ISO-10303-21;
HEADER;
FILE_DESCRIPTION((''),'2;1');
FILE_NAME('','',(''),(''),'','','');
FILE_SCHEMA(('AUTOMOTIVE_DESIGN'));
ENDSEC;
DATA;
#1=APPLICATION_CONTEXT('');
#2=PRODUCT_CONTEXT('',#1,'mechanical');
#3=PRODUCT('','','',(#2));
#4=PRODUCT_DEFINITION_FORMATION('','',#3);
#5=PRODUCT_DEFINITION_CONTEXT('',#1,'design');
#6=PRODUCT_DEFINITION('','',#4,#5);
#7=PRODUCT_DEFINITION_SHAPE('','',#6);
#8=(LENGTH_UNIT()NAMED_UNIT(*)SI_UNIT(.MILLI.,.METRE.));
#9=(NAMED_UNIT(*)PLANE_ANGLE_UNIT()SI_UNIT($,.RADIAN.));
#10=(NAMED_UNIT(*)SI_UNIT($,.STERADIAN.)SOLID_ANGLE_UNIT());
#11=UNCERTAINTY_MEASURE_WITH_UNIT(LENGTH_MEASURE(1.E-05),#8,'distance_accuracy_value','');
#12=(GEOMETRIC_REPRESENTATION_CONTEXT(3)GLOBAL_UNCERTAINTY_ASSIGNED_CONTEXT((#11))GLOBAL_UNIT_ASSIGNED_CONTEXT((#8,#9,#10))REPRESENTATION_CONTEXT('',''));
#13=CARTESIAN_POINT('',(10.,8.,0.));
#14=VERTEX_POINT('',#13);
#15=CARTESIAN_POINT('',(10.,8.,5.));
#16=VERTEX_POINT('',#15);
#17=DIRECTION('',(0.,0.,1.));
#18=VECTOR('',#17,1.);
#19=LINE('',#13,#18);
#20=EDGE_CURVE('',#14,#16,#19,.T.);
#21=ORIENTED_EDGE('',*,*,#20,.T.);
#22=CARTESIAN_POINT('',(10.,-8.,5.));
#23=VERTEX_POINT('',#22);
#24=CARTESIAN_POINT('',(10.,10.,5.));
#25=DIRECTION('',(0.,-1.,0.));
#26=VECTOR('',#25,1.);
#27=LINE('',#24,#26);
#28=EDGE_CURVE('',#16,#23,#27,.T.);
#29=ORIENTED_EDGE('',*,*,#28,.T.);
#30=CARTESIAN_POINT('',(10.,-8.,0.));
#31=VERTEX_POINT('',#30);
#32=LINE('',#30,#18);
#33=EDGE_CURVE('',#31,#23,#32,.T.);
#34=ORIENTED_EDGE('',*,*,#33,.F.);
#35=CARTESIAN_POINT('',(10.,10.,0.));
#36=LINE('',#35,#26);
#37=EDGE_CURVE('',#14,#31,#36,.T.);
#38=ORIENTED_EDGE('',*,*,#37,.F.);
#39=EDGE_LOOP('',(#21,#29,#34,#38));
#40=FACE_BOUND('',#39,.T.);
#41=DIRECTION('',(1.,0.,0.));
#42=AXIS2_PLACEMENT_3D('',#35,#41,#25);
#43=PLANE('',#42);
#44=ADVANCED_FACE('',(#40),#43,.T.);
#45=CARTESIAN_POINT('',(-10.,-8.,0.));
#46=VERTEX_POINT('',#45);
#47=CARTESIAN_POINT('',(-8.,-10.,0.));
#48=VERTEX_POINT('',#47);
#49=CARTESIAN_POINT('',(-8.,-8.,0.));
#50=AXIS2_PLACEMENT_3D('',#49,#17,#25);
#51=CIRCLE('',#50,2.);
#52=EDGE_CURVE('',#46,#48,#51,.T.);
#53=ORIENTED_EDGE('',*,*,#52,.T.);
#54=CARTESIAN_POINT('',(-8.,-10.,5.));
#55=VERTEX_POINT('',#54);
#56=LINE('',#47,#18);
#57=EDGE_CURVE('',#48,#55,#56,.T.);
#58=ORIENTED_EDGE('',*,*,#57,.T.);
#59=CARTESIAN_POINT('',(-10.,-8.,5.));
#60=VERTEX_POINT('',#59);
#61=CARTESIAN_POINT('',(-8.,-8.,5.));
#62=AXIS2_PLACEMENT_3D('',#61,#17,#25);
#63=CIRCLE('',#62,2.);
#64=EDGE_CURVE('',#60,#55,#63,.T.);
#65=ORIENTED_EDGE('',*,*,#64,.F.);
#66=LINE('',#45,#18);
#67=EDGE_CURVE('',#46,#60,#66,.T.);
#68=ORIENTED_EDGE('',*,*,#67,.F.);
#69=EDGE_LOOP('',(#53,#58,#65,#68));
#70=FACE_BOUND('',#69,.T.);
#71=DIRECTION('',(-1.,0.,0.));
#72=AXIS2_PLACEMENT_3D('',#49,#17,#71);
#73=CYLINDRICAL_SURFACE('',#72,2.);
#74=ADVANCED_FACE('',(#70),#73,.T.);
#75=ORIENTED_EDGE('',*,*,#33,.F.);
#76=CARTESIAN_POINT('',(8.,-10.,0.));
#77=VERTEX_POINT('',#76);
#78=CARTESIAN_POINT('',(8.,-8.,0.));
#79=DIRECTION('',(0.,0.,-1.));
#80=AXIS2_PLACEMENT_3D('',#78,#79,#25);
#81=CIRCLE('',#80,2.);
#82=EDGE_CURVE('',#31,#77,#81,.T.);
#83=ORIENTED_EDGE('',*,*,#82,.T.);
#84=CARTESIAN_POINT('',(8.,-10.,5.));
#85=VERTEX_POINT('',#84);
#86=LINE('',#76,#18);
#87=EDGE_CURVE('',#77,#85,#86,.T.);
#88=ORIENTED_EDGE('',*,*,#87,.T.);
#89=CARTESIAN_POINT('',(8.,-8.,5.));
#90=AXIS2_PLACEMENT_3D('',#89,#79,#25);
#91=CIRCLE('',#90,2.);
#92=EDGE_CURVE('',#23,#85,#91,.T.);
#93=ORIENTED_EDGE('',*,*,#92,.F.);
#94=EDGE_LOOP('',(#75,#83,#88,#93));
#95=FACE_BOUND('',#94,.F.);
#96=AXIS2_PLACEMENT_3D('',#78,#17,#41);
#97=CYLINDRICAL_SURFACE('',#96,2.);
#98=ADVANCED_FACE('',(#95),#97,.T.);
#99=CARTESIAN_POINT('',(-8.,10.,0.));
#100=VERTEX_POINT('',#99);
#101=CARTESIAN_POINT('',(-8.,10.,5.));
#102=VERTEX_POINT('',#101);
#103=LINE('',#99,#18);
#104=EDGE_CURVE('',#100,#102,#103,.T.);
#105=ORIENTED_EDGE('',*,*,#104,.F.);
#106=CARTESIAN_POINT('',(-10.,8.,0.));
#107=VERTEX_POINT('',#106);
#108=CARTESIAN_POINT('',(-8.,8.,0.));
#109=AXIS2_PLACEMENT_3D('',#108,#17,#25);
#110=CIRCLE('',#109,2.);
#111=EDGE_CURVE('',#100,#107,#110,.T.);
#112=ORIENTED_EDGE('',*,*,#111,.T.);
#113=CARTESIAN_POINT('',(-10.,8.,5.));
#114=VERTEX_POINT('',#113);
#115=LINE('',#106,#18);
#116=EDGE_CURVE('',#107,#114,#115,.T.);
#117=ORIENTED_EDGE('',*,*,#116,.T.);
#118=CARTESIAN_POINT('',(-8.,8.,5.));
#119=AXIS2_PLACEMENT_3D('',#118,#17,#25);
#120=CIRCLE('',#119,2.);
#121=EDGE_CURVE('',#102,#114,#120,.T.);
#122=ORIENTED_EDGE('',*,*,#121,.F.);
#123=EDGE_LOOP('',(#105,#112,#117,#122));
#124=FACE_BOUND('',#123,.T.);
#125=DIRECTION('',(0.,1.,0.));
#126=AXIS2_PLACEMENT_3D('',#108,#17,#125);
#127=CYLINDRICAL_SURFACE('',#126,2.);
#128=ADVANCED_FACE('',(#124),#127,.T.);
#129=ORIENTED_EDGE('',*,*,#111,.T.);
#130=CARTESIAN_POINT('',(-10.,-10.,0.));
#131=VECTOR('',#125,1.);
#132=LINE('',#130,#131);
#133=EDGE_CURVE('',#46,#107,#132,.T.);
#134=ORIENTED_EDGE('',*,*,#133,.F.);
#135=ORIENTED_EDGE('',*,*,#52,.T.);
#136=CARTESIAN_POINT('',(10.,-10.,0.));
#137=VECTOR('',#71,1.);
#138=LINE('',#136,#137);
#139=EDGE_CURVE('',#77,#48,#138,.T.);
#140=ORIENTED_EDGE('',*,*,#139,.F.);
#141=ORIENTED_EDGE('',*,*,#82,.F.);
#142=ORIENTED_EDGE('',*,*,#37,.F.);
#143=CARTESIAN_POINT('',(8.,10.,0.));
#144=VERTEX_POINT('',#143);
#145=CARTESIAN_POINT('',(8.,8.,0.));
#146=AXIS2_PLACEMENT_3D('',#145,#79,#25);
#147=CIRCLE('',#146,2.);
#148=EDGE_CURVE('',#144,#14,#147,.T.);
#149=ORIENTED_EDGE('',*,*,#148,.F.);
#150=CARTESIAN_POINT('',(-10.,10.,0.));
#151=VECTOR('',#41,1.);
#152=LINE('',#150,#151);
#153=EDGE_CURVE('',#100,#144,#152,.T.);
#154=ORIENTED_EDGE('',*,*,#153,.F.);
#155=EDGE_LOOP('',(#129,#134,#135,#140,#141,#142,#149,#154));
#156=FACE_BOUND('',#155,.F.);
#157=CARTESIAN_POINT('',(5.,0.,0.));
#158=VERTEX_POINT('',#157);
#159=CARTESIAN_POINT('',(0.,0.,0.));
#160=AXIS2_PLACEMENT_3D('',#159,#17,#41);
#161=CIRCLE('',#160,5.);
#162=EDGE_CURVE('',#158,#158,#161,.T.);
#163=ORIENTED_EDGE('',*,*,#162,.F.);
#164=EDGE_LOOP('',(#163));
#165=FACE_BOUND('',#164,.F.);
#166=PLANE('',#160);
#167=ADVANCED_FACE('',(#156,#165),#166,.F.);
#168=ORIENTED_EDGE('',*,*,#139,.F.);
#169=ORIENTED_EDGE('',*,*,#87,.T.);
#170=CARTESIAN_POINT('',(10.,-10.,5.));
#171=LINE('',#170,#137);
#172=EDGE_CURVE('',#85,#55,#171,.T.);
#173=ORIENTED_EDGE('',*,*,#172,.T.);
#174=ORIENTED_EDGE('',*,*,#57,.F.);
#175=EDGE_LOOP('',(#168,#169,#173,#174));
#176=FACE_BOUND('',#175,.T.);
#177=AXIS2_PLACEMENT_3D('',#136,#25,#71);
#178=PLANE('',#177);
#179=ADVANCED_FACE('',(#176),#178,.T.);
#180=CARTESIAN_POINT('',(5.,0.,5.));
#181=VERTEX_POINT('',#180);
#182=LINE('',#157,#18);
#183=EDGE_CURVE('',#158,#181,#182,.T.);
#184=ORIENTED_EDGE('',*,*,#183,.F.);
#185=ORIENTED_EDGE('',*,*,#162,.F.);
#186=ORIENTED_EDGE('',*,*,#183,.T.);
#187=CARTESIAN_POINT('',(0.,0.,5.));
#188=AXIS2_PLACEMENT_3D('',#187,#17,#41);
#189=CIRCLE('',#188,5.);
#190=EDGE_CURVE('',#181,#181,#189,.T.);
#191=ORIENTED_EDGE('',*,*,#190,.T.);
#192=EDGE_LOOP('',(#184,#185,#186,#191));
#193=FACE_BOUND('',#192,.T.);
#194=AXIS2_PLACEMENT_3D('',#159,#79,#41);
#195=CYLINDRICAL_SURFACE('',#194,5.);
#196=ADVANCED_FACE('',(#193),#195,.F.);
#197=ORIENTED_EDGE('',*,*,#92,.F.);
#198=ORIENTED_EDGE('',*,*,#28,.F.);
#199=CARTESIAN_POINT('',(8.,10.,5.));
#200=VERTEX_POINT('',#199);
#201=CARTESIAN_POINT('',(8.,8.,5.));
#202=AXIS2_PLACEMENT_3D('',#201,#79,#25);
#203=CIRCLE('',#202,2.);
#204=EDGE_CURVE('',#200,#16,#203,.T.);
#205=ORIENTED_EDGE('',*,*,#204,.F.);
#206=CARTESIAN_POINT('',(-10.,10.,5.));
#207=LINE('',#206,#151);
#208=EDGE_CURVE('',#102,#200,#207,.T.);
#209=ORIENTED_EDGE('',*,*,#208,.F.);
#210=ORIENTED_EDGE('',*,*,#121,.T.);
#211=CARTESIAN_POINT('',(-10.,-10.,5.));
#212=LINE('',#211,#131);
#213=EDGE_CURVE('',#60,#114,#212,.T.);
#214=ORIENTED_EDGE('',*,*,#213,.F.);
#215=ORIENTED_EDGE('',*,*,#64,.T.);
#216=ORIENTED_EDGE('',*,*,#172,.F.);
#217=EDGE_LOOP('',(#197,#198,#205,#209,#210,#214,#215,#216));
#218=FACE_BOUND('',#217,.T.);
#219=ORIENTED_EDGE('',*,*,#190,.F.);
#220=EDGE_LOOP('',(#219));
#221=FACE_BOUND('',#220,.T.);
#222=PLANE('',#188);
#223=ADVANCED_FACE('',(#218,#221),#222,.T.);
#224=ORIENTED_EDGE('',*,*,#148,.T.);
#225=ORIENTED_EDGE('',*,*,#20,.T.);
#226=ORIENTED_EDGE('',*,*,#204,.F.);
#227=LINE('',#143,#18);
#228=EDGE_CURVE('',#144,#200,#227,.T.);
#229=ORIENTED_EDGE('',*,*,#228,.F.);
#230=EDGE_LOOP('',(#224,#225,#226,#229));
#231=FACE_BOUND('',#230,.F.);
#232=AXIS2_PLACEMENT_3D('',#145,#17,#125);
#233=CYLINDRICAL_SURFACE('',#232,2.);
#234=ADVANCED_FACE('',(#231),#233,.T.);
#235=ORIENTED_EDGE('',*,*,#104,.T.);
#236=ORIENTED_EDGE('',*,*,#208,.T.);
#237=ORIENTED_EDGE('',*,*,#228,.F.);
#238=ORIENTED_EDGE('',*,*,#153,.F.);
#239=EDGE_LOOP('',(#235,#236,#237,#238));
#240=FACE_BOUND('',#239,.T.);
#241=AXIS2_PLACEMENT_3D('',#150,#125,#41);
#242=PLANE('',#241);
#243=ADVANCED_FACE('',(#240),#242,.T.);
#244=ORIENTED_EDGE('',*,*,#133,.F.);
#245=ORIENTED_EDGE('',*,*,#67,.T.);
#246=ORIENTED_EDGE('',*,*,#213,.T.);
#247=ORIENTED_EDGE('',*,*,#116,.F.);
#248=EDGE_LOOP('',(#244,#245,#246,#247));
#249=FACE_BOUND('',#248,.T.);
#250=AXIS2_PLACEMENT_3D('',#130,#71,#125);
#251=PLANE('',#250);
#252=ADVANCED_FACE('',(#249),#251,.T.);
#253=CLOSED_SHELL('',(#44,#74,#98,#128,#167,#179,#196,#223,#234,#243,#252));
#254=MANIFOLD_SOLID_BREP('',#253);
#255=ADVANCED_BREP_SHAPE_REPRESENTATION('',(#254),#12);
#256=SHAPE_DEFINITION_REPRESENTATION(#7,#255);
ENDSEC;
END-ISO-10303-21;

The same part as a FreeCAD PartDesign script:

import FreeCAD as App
import Part
import Sketcher
Q = App.Units.Quantity


def edges_at(feature, points):
    """Names of the edges that pass closest to the given points."""
    edges = feature.Shape.Edges
    near = lambda p: min(range(len(edges)), key=lambda i: edges[i].distToShape(Part.Vertex(*p))[0])
    return sorted({f"Edge{near(p) + 1}" for p in points})


def add_polygon(sketch, points):
    """Adds a closed chain of lines whose ends are joined by coincident constraints."""
    first, n = sketch.GeometryCount, len(points)
    for a, b in zip(points, points[1:] + points[:1]):
        sketch.addGeometry(Part.LineSegment(App.Vector(*a, 0), App.Vector(*b, 0)), False)
    for i in range(n):
        sketch.addConstraint(Sketcher.Constraint("Coincident", first + i, 2, first + (i + 1) % n, 1))

doc = App.newDocument("Part")
body = doc.addObject("PartDesign::Body", "Body")

sketch1 = body.newObject("Sketcher::SketchObject", "Sketch")
sketch1.AttachmentSupport = (doc.getObject("XY_Plane"), [""])
sketch1.MapMode = "FlatFace"
add_polygon(sketch1, [(10, 10), (-10, 10), (-10, -10), (10, -10)])
sketch1.addConstraint([
    Sketcher.Constraint("Horizontal", 0),
    Sketcher.Constraint("Vertical", 1),
    Sketcher.Constraint("Horizontal", 2),
    Sketcher.Constraint("Vertical", 3),
    Sketcher.Constraint("Symmetric", 0, 2, 2, 2, -1, 1),
    Sketcher.Constraint("Equal", 2, 1),
    Sketcher.Constraint("DistanceX", 0, 2, 0, 1, Q("20 mm")),
])
pad1 = body.newObject("PartDesign::Pad", "Pad")
pad1.Profile = sketch1
pad1.Length = 5

sketch2 = body.newObject("Sketcher::SketchObject", "Sketch001")
sketch2.AttachmentSupport = (doc.getObject("XY_Plane"), [""])
sketch2.MapMode = "FlatFace"
sketch2.addGeometry(Part.Circle(App.Vector(0, 0, 0), App.Vector(0, 0, 1), 5), False)
sketch2.addConstraint([
    Sketcher.Constraint("Coincident", 0, 3, -1, 1),
    Sketcher.Constraint("Diameter", 0, Q("10 mm")),
])
pocket1 = body.newObject("PartDesign::Pocket", "Pocket")
pocket1.Profile = sketch2
pocket1.Length = 5
pocket1.Reversed = True
doc.recompute()

fillet = body.newObject("PartDesign::Fillet", "Fillet")
fillet.Base = (pocket1, edges_at(pocket1, [
    (10, 10, 2.5),
    (10, -10, 2.5),
    (-10, -10, 2.5),
    (-10, 10, 2.5),
]))
fillet.Radius = 2

doc.recompute()
